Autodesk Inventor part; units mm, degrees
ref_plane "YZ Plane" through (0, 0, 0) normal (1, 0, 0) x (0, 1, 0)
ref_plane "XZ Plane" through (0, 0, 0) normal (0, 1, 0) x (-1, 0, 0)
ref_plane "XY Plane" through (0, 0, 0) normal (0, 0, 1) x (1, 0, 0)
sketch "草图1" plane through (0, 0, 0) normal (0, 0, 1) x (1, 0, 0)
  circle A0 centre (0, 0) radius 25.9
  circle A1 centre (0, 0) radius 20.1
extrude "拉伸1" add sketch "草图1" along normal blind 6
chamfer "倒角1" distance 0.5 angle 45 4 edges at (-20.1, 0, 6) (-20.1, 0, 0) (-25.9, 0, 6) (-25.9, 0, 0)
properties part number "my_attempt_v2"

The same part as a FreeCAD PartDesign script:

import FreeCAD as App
import Part
import Sketcher
from FreeCAD import Vector


def edges_at(feature, points):
    """Names of the edges that pass closest to the given points."""
    edges = feature.Shape.Edges
    near = lambda p: min(range(len(edges)), key=lambda i: edges[i].distToShape(Part.Vertex(*p))[0])
    return sorted({f"Edge{near(p) + 1}" for p in points})

doc = App.newDocument("Part")
body = doc.addObject("PartDesign::Body", "Body")

sketch1 = body.newObject("Sketcher::SketchObject", "Sketch")
sketch1.AttachmentSupport = (doc.getObject("XY_Plane"), [""])
sketch1.MapMode = "FlatFace"
sketch1.addGeometry(Part.Circle(Vector(0, 0, 0), Vector(0, 0, 1), 26), False)
sketch1.addGeometry(Part.Circle(Vector(0, 0, 0), Vector(0, 0, 1), 20), False)
sketch1.addConstraint(Sketcher.Constraint("Coincident", 0, 3, -1, 1))
sketch1.addConstraint(Sketcher.Constraint("Coincident", 1, 3, -1, 1))
sketch1.addConstraint(Sketcher.Constraint("Diameter", 0, 51.8))
sketch1.addConstraint(Sketcher.Constraint("Diameter", 1, 40.2))
pad1 = body.newObject("PartDesign::Pad", "Pad")
pad1.Profile = sketch1
pad1.Length = 6
doc.recompute()

chamfer = body.newObject("PartDesign::Chamfer", "Chamfer")
chamfer.Base = (pad1, edges_at(pad1, [
    (-20.1, 0, 6),
    (-20.1, 0, 0),
    (-25.9, 0, 6),
    (-25.9, 0, 0),
]))
chamfer.Size = 0.5

doc.recompute()
